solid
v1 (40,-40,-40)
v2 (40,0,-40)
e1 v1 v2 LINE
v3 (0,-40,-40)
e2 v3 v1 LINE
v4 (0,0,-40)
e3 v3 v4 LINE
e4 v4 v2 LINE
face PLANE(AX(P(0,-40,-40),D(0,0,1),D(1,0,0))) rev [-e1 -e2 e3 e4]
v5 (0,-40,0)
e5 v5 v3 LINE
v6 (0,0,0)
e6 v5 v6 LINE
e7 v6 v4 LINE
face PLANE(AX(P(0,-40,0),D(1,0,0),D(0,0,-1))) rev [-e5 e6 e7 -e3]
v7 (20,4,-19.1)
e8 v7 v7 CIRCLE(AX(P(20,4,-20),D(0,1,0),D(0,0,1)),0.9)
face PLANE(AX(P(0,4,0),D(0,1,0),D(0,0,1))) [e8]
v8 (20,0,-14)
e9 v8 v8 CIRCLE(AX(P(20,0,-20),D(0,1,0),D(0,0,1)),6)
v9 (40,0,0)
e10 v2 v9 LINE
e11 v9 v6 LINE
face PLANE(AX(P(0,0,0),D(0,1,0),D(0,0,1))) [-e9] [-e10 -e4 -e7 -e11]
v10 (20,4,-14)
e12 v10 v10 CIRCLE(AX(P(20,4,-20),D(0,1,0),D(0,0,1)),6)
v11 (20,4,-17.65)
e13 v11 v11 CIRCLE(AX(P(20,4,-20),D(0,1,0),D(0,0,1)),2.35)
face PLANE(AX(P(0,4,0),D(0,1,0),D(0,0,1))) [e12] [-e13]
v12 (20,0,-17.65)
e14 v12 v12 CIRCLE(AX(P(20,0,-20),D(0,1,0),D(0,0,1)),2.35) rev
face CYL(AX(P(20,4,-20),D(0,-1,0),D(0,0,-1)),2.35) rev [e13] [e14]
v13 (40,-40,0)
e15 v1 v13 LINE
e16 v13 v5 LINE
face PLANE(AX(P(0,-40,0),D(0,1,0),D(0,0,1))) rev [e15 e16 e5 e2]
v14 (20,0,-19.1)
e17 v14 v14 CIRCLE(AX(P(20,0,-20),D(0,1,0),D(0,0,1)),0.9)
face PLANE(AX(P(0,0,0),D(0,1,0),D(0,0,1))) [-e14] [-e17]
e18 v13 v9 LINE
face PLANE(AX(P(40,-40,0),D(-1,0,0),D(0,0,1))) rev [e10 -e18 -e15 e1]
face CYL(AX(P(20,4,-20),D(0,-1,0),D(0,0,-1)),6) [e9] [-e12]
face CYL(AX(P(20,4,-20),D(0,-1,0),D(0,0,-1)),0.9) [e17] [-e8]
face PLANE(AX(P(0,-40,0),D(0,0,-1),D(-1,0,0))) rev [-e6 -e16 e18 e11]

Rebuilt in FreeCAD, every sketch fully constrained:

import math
import FreeCAD as App
import Part
import Sketcher
Q = App.Units.Quantity


def add_polygon(sketch, points):
    """Adds a closed chain of lines whose ends are joined by coincident constraints."""
    first, n = sketch.GeometryCount, len(points)
    for a, b in zip(points, points[1:] + points[:1]):
        sketch.addGeometry(Part.LineSegment(App.Vector(*a, 0), App.Vector(*b, 0)), False)
    for i in range(n):
        sketch.addConstraint(Sketcher.Constraint("Coincident", first + i, 2, first + (i + 1) % n, 1))

doc = App.newDocument("Part")
body = doc.addObject("PartDesign::Body", "Body")

# Sketch on XZ plane
sketch1 = doc.addObject("Sketcher::SketchObject", "Sketch")
body.addObject(sketch1)
sketch1.AttachmentSupport = (doc.XZ_Plane, [""])
sketch1.MapMode = "FlatFace"
add_polygon(sketch1, [(0, -40), (0, 0), (40, 0), (40, -40)])  # lines 0-3
sketch1.addConstraint([
    Sketcher.Constraint("Vertical", 0),
    Sketcher.Constraint("Horizontal", 1),
    Sketcher.Constraint("Vertical", 2),
    Sketcher.Constraint("Horizontal", 3),
    Sketcher.Constraint("Coincident", 0, 2, -1, 1),
    Sketcher.Constraint("Equal", 3, 0),
    Sketcher.Constraint("DistanceX", 1, 1, 1, 2, Q("40 mm")),
])
pad1 = doc.addObject("PartDesign::Pad", "Pad")
body.addObject(pad1)
pad1.Profile = sketch1
pad1.Length = 40

# Sketch on XZ plane
sketch2 = doc.addObject("Sketcher::SketchObject", "Sketch001")
body.addObject(sketch2)
sketch2.AttachmentSupport = (doc.XZ_Plane, [""])
sketch2.MapMode = "FlatFace"
sketch2.addGeometry([
    Part.ArcOfCircle(Part.Circle(App.Vector(20, -20, 0), App.Vector(0, 0, 1), 0.9), math.radians(90), math.radians(270)),  # 0
    Part.ArcOfCircle(Part.Circle(App.Vector(20, -20, 0), App.Vector(0, 0, 1), 0.9), math.radians(0), math.radians(90)),  # 1
    Part.ArcOfCircle(Part.Circle(App.Vector(20, -20, 0), App.Vector(0, 0, 1), 0.9), math.radians(-90), math.radians(0)),  # 2
    Part.ArcOfCircle(Part.Circle(App.Vector(20, -20, 0), App.Vector(0, 0, 1), 6), math.radians(90), math.radians(270)),  # 3
    Part.ArcOfCircle(Part.Circle(App.Vector(20, -20, 0), App.Vector(0, 0, 1), 6), math.radians(0), math.radians(90)),  # 4
    Part.ArcOfCircle(Part.Circle(App.Vector(20, -20, 0), App.Vector(0, 0, 1), 6), math.radians(-90), math.radians(0)),  # 5
    Part.ArcOfCircle(Part.Circle(App.Vector(20, -20, 0), App.Vector(0, 0, 1), 2.4), math.radians(90), math.radians(270)),  # 6
    Part.ArcOfCircle(Part.Circle(App.Vector(20, -20, 0), App.Vector(0, 0, 1), 2.3), math.radians(-90), math.radians(0)),  # 7
    Part.ArcOfCircle(Part.Circle(App.Vector(20, -20, 0), App.Vector(0, 0, 1), 2.3), math.radians(0), math.radians(90)),  # 8
], False)
sketch2.addConstraint([
    Sketcher.Constraint("Tangent", 0, 1, 1, 2),
    Sketcher.Constraint("Tangent", 1, 1, 2, 2),
    Sketcher.Constraint("Tangent", 2, 1, 0, 2),
    Sketcher.Constraint("Tangent", 3, 1, 4, 2),
    Sketcher.Constraint("Tangent", 4, 1, 5, 2),
    Sketcher.Constraint("Tangent", 5, 1, 3, 2),
    Sketcher.Constraint("Tangent", 6, 2, 7, 1),
    Sketcher.Constraint("Tangent", 7, 2, 8, 1),
    Sketcher.Constraint("Tangent", 8, 2, 6, 1),
    Sketcher.Constraint("Coincident", 3, 3, 0, 3),
    Sketcher.Constraint("Coincident", 6, 3, 0, 3),
    Sketcher.Constraint("Horizontal", 8, 3, 1, 1),
    Sketcher.Constraint("Horizontal", 1, 1, 4, 1),
    Sketcher.Constraint("Horizontal", 4, 1, 7, 2),
    Sketcher.Constraint("Vertical", 8, 3, 0, 1),
    Sketcher.Constraint("Vertical", 0, 1, 2, 1),
    Sketcher.Constraint("Vertical", 2, 1, 3, 1),
    Sketcher.Constraint("Vertical", 3, 1, 5, 1),
    Sketcher.Constraint("Vertical", 5, 1, 6, 2),
    Sketcher.Constraint("Vertical", 6, 2, 8, 2),
    Sketcher.Constraint("Radius", 3, Q("6 mm")),
    Sketcher.Constraint("Radius", 0, Q("0.9 mm")),
    Sketcher.Constraint("Radius", 6, Q("2.35 mm")),
    Sketcher.Constraint("DistanceX", -1, 1, 0, 3, Q("20 mm")),
    Sketcher.Constraint("DistanceY", 0, 3, -1, 1, Q("20 mm")),
])
pad2 = doc.addObject("PartDesign::Pad", "Pad001")
body.addObject(pad2)
pad2.Profile = sketch2
pad2.Length = 4
pad2.Reversed = True

doc.recompute()
